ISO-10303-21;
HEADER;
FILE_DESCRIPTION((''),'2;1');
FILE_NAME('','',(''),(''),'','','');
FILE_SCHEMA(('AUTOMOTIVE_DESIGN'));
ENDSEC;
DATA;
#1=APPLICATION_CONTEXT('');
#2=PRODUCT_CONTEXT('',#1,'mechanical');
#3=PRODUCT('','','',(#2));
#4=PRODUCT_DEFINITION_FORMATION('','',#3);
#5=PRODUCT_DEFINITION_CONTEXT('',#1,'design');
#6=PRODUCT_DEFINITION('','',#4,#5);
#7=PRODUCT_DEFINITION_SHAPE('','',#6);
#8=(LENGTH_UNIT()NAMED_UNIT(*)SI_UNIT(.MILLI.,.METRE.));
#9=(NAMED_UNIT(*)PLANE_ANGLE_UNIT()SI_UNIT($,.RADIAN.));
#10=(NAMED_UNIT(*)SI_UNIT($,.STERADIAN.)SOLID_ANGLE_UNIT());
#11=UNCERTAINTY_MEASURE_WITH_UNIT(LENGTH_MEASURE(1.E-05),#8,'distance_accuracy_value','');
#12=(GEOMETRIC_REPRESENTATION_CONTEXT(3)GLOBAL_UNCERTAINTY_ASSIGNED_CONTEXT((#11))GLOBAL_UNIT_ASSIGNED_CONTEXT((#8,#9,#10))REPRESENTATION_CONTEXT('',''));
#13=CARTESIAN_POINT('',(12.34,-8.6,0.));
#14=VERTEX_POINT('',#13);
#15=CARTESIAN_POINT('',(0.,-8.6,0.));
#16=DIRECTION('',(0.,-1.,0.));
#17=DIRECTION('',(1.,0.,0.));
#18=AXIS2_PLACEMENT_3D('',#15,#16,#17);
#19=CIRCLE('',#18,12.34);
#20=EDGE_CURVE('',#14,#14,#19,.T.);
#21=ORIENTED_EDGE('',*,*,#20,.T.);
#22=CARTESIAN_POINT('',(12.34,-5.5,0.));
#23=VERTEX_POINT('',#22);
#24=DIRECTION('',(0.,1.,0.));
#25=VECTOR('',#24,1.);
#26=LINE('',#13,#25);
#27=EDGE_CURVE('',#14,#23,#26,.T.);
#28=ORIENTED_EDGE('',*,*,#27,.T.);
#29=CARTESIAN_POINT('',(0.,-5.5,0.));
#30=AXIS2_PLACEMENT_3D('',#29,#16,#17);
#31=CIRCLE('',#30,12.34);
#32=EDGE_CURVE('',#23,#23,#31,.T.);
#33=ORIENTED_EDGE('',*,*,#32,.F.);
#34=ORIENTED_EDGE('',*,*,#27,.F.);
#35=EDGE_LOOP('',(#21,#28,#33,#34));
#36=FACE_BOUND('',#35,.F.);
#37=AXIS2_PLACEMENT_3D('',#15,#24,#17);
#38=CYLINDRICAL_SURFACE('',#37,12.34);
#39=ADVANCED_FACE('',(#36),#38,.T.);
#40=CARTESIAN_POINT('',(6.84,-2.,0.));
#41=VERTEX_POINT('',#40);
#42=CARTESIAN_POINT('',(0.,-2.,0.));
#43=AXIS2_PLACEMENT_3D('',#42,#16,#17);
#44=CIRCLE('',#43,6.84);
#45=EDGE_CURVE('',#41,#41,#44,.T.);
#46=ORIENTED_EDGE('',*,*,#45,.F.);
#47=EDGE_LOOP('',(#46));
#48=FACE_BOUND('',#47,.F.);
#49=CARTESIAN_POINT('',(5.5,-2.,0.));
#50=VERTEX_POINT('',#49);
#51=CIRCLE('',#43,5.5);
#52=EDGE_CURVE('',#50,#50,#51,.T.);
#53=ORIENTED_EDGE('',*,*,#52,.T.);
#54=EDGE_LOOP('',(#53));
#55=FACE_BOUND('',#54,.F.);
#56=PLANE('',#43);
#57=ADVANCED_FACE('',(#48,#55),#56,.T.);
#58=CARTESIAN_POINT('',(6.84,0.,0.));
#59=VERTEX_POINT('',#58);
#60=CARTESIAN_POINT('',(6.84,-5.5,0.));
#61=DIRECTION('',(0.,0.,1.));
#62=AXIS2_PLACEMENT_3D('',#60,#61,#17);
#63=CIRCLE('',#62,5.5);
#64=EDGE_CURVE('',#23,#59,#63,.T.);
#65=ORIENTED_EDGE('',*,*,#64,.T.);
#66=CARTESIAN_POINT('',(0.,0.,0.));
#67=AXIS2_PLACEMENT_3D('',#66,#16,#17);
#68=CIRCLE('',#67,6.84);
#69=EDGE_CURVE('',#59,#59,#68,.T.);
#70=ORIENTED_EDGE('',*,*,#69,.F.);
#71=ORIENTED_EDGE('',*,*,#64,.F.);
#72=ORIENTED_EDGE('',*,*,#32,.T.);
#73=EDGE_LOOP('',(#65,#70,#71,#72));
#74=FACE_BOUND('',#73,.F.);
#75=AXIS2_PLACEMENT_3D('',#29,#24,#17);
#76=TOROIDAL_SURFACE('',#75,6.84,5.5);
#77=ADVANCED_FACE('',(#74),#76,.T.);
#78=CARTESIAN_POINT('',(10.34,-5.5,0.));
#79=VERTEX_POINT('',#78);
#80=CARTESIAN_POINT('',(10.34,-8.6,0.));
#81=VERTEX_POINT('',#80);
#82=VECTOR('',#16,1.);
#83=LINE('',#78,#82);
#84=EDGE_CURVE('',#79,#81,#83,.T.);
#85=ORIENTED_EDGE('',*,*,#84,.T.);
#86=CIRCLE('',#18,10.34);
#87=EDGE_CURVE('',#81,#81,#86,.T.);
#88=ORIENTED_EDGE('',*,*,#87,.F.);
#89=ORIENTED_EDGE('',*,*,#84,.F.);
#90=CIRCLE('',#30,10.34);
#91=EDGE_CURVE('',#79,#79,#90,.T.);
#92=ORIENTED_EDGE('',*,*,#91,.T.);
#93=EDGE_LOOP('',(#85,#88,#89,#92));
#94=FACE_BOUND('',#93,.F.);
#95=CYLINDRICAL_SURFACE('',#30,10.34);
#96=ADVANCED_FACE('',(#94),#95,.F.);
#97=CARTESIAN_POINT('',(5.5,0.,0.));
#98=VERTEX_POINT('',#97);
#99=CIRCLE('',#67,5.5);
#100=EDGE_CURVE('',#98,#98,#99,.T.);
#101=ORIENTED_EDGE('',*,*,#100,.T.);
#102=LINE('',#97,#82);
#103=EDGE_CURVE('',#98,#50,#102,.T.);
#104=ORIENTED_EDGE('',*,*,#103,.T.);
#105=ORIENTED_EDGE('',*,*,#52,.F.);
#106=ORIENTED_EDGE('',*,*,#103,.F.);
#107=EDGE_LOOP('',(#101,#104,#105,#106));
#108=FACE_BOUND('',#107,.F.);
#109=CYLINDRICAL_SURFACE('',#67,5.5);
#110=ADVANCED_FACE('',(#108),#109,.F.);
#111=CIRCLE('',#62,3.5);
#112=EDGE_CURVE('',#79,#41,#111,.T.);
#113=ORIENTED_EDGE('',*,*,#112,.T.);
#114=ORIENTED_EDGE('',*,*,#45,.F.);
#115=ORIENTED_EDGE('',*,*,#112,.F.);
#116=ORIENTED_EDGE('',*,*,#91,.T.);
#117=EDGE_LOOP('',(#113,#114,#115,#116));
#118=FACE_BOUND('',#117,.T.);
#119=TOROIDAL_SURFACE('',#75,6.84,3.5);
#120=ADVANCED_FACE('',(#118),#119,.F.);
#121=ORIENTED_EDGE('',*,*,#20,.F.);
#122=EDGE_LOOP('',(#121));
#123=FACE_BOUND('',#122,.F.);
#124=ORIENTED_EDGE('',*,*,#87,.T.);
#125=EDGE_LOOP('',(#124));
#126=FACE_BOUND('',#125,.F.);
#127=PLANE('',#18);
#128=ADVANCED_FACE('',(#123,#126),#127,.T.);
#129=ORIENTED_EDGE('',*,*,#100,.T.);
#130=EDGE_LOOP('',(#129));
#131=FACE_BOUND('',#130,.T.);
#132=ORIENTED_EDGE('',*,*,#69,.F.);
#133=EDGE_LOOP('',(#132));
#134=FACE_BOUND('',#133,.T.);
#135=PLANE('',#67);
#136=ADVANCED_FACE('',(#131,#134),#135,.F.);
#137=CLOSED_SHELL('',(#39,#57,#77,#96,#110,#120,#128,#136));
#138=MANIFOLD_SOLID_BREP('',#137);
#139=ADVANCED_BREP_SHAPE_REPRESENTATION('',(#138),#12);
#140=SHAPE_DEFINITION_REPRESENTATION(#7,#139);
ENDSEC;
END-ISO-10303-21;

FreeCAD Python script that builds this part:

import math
import FreeCAD as App
import Part
import Sketcher
Q = App.Units.Quantity

doc = App.newDocument("Part")
body = doc.addObject("PartDesign::Body", "Body")

# Sketch on XY plane
sketch1 = body.newObject("Sketcher::SketchObject", "Sketch")
sketch1.AttachmentSupport = (doc.getObject("XY_Plane"), [""])
sketch1.MapMode = "FlatFace"
sketch1.addGeometry([
    Part.LineSegment(App.Vector(6.8, 0, 0), App.Vector(5.5, 0, 0)),  # 0
    Part.LineSegment(App.Vector(5.5, 0, 0), App.Vector(5.5, -2, 0)),  # 1
    Part.LineSegment(App.Vector(5.5, -2, 0), App.Vector(6.8, -2, 0)),  # 2
    Part.ArcOfCircle(Part.Circle(App.Vector(6.8, -5.5, 0), App.Vector(0, 0, 1), 3.5), math.radians(0), math.radians(90)),  # 3
    Part.LineSegment(App.Vector(10.3, -5.5, 0), App.Vector(10.3, -8.6, 0)),  # 4
    Part.LineSegment(App.Vector(10.3, -8.6, 0), App.Vector(12.3, -8.6, 0)),  # 5
    Part.LineSegment(App.Vector(12.3, -8.6, 0), App.Vector(12.3, -5.5, 0)),  # 6
    Part.ArcOfCircle(Part.Circle(App.Vector(6.8, -5.5, 0), App.Vector(0, 0, 1), 5.5), math.radians(0), math.radians(90)),  # 7
], False)
sketch1.addConstraint([
    Sketcher.Constraint("Coincident", 0, 2, 1, 1),
    Sketcher.Constraint("Coincident", 1, 2, 2, 1),
    Sketcher.Constraint("Tangent", 2, 2, 3, 2),
    Sketcher.Constraint("Tangent", 3, 1, 4, 1),
    Sketcher.Constraint("Coincident", 4, 2, 5, 1),
    Sketcher.Constraint("Coincident", 5, 2, 6, 1),
    Sketcher.Constraint("Tangent", 6, 2, 7, 1),
    Sketcher.Constraint("Tangent", 7, 2, 0, 1),
    Sketcher.Constraint("Horizontal", 0),
    Sketcher.Constraint("Vertical", 1),
    Sketcher.Constraint("Horizontal", 2),
    Sketcher.Constraint("Vertical", 4),
    Sketcher.Constraint("Horizontal", 5),
    Sketcher.Constraint("Vertical", 6),
    Sketcher.Constraint("Coincident", 7, 3, 3, 3),
    Sketcher.Constraint("PointOnObject", 0, 2, -1),
    Sketcher.Constraint("Radius", 3, Q("3.5 mm")),
    Sketcher.Constraint("Radius", 7, Q("5.5 mm")),
    Sketcher.Constraint("DistanceX", -1, 1, 0, 2, Q("5.5 mm")),
    Sketcher.Constraint("DistanceY", 4, 2, -1, 1, Q("8.6 mm")),
    Sketcher.Constraint("DistanceX", -1, 1, 5, 2, Q("12.34 mm")),
])
revolution = body.newObject("PartDesign::Revolution", "Revolution")
revolution.Profile = sketch1
revolution.ReferenceAxis = (sketch1, ["V_Axis"])
revolution.Angle = 360

doc.recompute()
